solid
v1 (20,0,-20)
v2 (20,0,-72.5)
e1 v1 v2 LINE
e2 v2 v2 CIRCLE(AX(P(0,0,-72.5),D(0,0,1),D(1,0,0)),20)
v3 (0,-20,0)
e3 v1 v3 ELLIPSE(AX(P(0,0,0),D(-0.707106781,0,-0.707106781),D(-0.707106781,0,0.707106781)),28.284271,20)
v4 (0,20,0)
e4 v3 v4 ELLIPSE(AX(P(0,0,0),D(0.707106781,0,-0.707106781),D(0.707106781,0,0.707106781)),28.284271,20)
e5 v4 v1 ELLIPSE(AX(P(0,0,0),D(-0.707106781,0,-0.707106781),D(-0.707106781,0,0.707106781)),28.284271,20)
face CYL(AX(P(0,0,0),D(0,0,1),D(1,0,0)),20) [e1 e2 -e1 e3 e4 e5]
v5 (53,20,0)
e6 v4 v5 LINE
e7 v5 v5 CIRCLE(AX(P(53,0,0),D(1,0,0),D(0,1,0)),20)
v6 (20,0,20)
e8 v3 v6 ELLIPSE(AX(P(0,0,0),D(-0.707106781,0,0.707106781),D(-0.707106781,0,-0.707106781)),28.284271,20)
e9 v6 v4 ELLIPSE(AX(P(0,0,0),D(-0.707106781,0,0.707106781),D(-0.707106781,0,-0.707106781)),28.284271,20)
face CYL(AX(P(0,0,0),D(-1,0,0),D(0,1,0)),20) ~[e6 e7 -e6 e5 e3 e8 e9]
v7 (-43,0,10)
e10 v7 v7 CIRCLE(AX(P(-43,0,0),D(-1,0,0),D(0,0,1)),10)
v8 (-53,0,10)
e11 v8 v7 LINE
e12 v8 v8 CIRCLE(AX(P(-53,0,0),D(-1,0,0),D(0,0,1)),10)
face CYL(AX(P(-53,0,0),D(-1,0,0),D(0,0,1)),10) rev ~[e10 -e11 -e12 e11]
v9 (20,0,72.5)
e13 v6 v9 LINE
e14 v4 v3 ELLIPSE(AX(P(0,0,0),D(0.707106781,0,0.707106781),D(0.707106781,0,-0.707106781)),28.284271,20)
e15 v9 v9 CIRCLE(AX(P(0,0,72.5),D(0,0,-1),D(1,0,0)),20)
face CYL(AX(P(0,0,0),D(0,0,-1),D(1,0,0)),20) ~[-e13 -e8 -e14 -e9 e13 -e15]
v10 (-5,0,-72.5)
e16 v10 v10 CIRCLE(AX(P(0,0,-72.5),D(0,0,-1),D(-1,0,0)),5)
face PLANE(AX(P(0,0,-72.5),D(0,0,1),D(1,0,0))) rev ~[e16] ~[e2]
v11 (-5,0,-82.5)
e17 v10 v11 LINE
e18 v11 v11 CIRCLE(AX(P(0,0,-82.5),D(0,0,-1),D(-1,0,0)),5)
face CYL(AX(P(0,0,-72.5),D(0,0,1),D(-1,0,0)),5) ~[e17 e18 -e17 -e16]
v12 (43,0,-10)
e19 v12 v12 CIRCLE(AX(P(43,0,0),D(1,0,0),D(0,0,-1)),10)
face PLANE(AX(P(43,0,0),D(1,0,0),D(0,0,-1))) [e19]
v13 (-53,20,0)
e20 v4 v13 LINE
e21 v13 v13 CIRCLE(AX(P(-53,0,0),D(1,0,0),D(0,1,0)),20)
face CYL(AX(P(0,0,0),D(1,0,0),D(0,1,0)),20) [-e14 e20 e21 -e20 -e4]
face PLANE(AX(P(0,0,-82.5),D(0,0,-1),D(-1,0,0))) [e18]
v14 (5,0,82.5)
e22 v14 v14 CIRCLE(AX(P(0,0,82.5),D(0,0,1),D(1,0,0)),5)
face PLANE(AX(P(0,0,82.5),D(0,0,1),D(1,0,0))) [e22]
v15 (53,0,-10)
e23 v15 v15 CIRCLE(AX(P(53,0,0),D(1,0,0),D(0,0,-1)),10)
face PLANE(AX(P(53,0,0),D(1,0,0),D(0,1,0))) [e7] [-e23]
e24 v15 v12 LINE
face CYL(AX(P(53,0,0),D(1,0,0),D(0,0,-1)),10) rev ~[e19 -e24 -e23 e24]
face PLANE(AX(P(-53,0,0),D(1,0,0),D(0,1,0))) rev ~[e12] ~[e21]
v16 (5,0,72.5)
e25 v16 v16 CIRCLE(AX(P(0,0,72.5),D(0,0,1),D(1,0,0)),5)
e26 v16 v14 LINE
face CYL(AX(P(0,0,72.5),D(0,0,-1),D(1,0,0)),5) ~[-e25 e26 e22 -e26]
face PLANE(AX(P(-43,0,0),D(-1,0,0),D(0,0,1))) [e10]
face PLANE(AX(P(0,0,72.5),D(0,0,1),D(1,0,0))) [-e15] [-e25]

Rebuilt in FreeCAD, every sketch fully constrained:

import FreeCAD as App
import Part
import Sketcher
from FreeCAD import Vector

doc = App.newDocument("Part")
params = doc.addObject("Spreadsheet::Sheet", "Params")
for row, (alias, value) in enumerate([
    ("sketch1_diameter", "40 mm"),
    ("pad1_length", "106 mm"),
    ("sketch2_diameter", "20 mm"),
    ("pocket1_length", "10 mm"),
    ("sketch3_diameter", "20 mm"),
    ("pocket2_length", "10 mm"),
    ("sketch4_diameter", "40 mm"),
    ("pad2_length", "145 mm"),
    ("sketch5_diameter", "10 mm"),
    ("pad3_length", "10 mm"),
    ("sketch6_diameter", "10 mm"),
    ("pad4_length", "10 mm"),
], start=1):
    params.set(f"A{row}", alias)
    params.set(f"B{row}", "=" + value)
    params.setAlias(f"B{row}", alias)

body = doc.addObject("PartDesign::Body", "Body")

sketch1 = doc.addObject("Sketcher::SketchObject", "Sketch")
body.addObject(sketch1)
sketch1.AttachmentSupport = (doc.YZ_Plane, [""])
sketch1.MapMode = "FlatFace"
sketch1.addGeometry(Part.Circle(Vector(0, 0, 0), Vector(0, 0, 1), 20), False)
sketch1.addConstraint([
    Sketcher.Constraint("Coincident", 0, 3, -1, 1),
    Sketcher.Constraint("Diameter", 0, 40.0),
])
sketch1.setExpression("Constraints[1]", "Params.sketch1_diameter")
pad1 = doc.addObject("PartDesign::Pad", "Pad")
body.addObject(pad1)
pad1.Profile = sketch1
pad1.setExpression("Length", "Params.pad1_length")
pad1.Midplane = True

sketch2 = doc.addObject("Sketcher::SketchObject", "Sketch001")
body.addObject(sketch2)
sketch2.AttachmentSupport = (doc.YZ_Plane, [""])
sketch2.MapMode = "FlatFace"
sketch2.AttachmentOffset = App.Placement(Vector(0, 0, 53), App.Rotation())
sketch2.addGeometry(Part.Circle(Vector(0, 0, 0), Vector(0, 0, 1), 10), False)
sketch2.addConstraint([
    Sketcher.Constraint("Coincident", 0, 3, -1, 1),
    Sketcher.Constraint("Diameter", 0, 20.0),
])
sketch2.setExpression("Constraints[1]", "Params.sketch2_diameter")
pocket1 = doc.addObject("PartDesign::Pocket", "Pocket")
body.addObject(pocket1)
pocket1.Profile = sketch2
pocket1.setExpression("Length", "Params.pocket1_length")

sketch3 = doc.addObject("Sketcher::SketchObject", "Sketch002")
body.addObject(sketch3)
sketch3.AttachmentSupport = (doc.YZ_Plane, [""])
sketch3.MapMode = "FlatFace"
sketch3.AttachmentOffset = App.Placement(Vector(0, 0, -53), App.Rotation())
sketch3.addGeometry(Part.Circle(Vector(0, 0, 0), Vector(0, 0, 1), 10), False)
sketch3.addConstraint([
    Sketcher.Constraint("Coincident", 0, 3, -1, 1),
    Sketcher.Constraint("Diameter", 0, 20.0),
])
sketch3.setExpression("Constraints[1]", "Params.sketch3_diameter")
pocket2 = doc.addObject("PartDesign::Pocket", "Pocket001")
body.addObject(pocket2)
pocket2.Profile = sketch3
pocket2.setExpression("Length", "Params.pocket2_length")
pocket2.Reversed = True

sketch4 = doc.addObject("Sketcher::SketchObject", "Sketch003")
body.addObject(sketch4)
sketch4.AttachmentSupport = (doc.XY_Plane, [""])
sketch4.MapMode = "FlatFace"
sketch4.addGeometry(Part.Circle(Vector(0, 0, 0), Vector(0, 0, 1), 20), False)
sketch4.addConstraint([
    Sketcher.Constraint("Coincident", 0, 3, -1, 1),
    Sketcher.Constraint("Diameter", 0, 40.0),
])
sketch4.setExpression("Constraints[1]", "Params.sketch4_diameter")
pad2 = doc.addObject("PartDesign::Pad", "Pad001")
body.addObject(pad2)
pad2.Profile = sketch4
pad2.setExpression("Length", "Params.pad2_length")
pad2.Midplane = True

sketch5 = doc.addObject("Sketcher::SketchObject", "Sketch004")
body.addObject(sketch5)
sketch5.AttachmentSupport = (doc.XY_Plane, [""])
sketch5.MapMode = "FlatFace"
sketch5.AttachmentOffset = App.Placement(Vector(0, 0, 72.5), App.Rotation())
sketch5.addGeometry(Part.Circle(Vector(0, 0, 0), Vector(0, 0, 1), 5), False)
sketch5.addConstraint([
    Sketcher.Constraint("Coincident", 0, 3, -1, 1),
    Sketcher.Constraint("Diameter", 0, 10.0),
])
sketch5.setExpression("Constraints[1]", "Params.sketch5_diameter")
pad3 = doc.addObject("PartDesign::Pad", "Pad002")
body.addObject(pad3)
pad3.Profile = sketch5
pad3.setExpression("Length", "Params.pad3_length")

sketch6 = doc.addObject("Sketcher::SketchObject", "Sketch005")
body.addObject(sketch6)
sketch6.AttachmentSupport = (doc.XY_Plane, [""])
sketch6.MapMode = "FlatFace"
sketch6.AttachmentOffset = App.Placement(Vector(0, 0, -72.5), App.Rotation())
sketch6.addGeometry(Part.Circle(Vector(0, 0, 0), Vector(0, 0, 1), 5), False)
sketch6.addConstraint([
    Sketcher.Constraint("Coincident", 0, 3, -1, 1),
    Sketcher.Constraint("Diameter", 0, 10.0),
])
sketch6.setExpression("Constraints[1]", "Params.sketch6_diameter")
pad4 = doc.addObject("PartDesign::Pad", "Pad003")
body.addObject(pad4)
pad4.Profile = sketch6
pad4.setExpression("Length", "Params.pad4_length")
pad4.Reversed = True

doc.recompute()
